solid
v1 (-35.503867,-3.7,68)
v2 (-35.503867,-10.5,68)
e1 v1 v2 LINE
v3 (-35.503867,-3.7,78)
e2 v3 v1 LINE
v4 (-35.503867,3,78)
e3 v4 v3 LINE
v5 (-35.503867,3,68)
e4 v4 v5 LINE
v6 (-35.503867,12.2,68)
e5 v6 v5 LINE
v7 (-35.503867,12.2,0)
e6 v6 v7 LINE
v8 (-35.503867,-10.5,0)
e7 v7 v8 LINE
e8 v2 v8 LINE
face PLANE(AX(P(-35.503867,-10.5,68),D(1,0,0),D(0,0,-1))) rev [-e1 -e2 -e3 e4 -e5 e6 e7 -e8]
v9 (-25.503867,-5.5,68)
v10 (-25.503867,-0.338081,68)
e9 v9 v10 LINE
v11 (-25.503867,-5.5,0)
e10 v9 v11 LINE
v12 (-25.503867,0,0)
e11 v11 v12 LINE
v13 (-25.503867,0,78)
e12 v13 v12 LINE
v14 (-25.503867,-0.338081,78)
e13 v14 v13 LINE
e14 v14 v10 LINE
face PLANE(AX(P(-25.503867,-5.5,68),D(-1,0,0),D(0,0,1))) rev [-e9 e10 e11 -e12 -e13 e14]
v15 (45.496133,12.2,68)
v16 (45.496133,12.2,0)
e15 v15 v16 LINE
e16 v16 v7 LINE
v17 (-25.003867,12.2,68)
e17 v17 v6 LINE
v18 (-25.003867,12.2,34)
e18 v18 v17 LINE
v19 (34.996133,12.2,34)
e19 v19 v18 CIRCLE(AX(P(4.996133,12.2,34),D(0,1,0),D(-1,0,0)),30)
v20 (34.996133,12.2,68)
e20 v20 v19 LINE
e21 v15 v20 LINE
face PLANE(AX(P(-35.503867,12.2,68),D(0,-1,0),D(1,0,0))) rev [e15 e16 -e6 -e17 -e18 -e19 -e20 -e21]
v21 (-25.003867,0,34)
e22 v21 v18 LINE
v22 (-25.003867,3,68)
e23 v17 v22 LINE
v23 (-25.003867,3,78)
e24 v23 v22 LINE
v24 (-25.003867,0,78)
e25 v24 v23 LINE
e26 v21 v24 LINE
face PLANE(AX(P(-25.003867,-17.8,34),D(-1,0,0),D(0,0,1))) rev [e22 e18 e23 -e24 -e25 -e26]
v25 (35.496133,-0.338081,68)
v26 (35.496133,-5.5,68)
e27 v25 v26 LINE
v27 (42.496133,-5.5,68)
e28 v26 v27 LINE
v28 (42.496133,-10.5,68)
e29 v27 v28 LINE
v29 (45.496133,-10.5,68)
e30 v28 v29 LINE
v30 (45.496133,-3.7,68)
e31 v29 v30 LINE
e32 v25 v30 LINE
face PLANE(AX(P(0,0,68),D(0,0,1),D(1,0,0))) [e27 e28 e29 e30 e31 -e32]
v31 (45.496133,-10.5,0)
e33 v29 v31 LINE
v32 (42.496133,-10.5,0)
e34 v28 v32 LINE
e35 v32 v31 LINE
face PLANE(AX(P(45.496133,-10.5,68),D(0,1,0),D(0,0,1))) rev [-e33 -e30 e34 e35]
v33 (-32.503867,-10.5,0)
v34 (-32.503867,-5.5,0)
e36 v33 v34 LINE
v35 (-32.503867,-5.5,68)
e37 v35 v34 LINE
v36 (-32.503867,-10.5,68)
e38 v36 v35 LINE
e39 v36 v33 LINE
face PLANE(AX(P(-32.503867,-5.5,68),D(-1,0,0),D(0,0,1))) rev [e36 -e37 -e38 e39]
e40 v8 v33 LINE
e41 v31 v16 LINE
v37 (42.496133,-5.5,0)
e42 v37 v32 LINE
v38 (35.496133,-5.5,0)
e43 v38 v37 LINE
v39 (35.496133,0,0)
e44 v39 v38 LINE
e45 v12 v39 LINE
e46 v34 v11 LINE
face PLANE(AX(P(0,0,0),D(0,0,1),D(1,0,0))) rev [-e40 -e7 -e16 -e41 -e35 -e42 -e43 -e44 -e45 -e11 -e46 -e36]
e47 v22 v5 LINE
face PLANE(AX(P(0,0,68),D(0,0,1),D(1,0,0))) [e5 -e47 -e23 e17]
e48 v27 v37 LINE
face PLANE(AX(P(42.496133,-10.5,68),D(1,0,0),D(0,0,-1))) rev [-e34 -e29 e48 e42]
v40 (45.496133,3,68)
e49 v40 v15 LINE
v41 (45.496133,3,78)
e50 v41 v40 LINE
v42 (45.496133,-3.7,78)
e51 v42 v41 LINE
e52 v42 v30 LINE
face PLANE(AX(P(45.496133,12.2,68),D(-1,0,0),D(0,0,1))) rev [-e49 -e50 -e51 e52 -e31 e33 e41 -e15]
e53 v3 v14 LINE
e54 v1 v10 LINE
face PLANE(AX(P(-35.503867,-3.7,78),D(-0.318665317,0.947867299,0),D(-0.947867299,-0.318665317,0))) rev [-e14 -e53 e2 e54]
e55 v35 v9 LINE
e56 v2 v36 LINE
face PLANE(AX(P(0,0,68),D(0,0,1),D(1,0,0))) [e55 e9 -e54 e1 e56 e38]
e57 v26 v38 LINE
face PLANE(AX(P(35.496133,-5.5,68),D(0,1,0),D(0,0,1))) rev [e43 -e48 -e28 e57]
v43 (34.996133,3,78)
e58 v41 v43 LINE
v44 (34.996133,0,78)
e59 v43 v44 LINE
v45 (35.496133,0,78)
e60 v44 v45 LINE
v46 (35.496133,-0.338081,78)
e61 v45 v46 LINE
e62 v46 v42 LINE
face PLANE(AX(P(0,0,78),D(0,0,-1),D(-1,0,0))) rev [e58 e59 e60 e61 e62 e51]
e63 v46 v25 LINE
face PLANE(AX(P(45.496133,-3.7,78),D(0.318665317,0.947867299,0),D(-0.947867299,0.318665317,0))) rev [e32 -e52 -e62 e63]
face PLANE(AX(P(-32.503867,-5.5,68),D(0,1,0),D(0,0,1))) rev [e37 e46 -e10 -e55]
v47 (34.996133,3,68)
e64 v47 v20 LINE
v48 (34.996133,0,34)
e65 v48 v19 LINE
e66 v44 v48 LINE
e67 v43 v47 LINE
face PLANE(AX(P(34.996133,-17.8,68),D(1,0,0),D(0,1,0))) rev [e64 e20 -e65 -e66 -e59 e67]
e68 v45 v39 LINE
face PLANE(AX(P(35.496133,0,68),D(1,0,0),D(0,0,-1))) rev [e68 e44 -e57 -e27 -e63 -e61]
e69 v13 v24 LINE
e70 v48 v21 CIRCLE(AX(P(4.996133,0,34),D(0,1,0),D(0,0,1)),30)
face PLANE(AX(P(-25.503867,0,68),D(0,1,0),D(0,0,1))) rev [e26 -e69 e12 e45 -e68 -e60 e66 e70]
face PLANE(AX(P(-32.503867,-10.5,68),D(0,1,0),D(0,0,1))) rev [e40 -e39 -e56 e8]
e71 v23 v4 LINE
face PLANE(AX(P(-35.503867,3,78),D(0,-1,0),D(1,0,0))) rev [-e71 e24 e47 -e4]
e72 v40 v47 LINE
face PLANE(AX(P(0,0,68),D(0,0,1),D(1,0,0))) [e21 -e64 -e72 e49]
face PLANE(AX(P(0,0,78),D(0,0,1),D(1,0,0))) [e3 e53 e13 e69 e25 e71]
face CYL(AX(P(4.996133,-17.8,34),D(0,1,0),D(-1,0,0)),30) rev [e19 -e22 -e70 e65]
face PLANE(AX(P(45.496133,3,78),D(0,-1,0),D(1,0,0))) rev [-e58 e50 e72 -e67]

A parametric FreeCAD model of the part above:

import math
import FreeCAD as App
import Part
import Sketcher


def add_polygon(sketch, points):
    """Adds a closed chain of lines whose ends are joined by coincident constraints."""
    first, n = sketch.GeometryCount, len(points)
    for a, b in zip(points, points[1:] + points[:1]):
        sketch.addGeometry(Part.LineSegment(App.Vector(*a, 0), App.Vector(*b, 0)), False)
    for i in range(n):
        sketch.addConstraint(Sketcher.Constraint("Coincident", first + i, 2, first + (i + 1) % n, 1))

doc = App.newDocument("Part")
body = doc.addObject("PartDesign::Body", "Body")

sketch1 = body.newObject("Sketcher::SketchObject", "Sketch")
sketch1.AttachmentSupport = (doc.getObject("XY_Plane"), [""])
sketch1.MapMode = "FlatFace"
add_polygon(sketch1, [(-32.503867, -10.5), (-32.503867, -5.5), (-25.503867, -5.5), (-25.503867, 0), (35.496133, 0), (35.496133, -5.5), (42.496133, -5.5), (42.496133, -10.5), (45.496133, -10.5), (45.496133, 12.2), (-35.503867, 12.2), (-35.503867, -10.5)])
sketch1.addConstraint(Sketcher.Constraint("Vertical", 0))
sketch1.addConstraint(Sketcher.Constraint("Horizontal", 1))
sketch1.addConstraint(Sketcher.Constraint("Vertical", 2))
sketch1.addConstraint(Sketcher.Constraint("Horizontal", 3))
sketch1.addConstraint(Sketcher.Constraint("Vertical", 4))
sketch1.addConstraint(Sketcher.Constraint("Horizontal", 5))
sketch1.addConstraint(Sketcher.Constraint("Vertical", 6))
sketch1.addConstraint(Sketcher.Constraint("Horizontal", 7))
sketch1.addConstraint(Sketcher.Constraint("Vertical", 8))
sketch1.addConstraint(Sketcher.Constraint("Horizontal", 9))
sketch1.addConstraint(Sketcher.Constraint("Vertical", 10))
sketch1.addConstraint(Sketcher.Constraint("Horizontal", 11))
sketch1.addConstraint(Sketcher.Constraint("PointOnObject", 2, 2, -1))
sketch1.addConstraint(Sketcher.Constraint("Horizontal", 1, 2, 4, 2))
sketch1.addConstraint(Sketcher.Constraint("Horizontal", 7, 2, 10, 2))
sketch1.addConstraint(Sketcher.Constraint("Equal", 1, 5))
sketch1.addConstraint(Sketcher.Constraint("Equal", 7, 11))
sketch1.addConstraint(Sketcher.Constraint("DistanceX", 1, 1, 1, 2, 7.0))
sketch1.addConstraint(Sketcher.Constraint("DistanceX", 3, 1, 3, 2, 61.0))
sketch1.addConstraint(Sketcher.Constraint("DistanceX", 7, 1, 7, 2, 3.0))
sketch1.addConstraint(Sketcher.Constraint("DistanceY", 0, 1, 0, 2, 5.0))
sketch1.addConstraint(Sketcher.Constraint("DistanceY", 2, 1, 2, 2, 5.5))
sketch1.addConstraint(Sketcher.Constraint("DistanceY", 8, 1, 8, 2, 22.7))
sketch1.addConstraint(Sketcher.Constraint("DistanceX", 0, 2, -1, 1, 32.503867))
pad1 = body.newObject("PartDesign::Pad", "Pad")
pad1.Profile = sketch1
pad1.Length = 68

sketch2 = body.newObject("Sketcher::SketchObject", "Sketch001")
sketch2.AttachmentSupport = (doc.getObject("XZ_Plane"), [""])
sketch2.MapMode = "FlatFace"
sketch2.AttachmentOffset = App.Placement(App.Vector(0, 0, -12.2), App.Rotation())
sketch2.addGeometry(Part.LineSegment(App.Vector(-25.003867, 34, 0), App.Vector(-25.003867, 68, 0)), False)
sketch2.addGeometry(Part.LineSegment(App.Vector(-25.003867, 68, 0), App.Vector(34.996133, 68, 0)), False)
sketch2.addGeometry(Part.LineSegment(App.Vector(34.996133, 68, 0), App.Vector(34.996133, 34, 0)), False)
sketch2.addGeometry(Part.ArcOfCircle(Part.Circle(App.Vector(4.996133, 34, 0), App.Vector(0, 0, 1), 30), math.radians(180), math.radians(360)), False)
sketch2.addConstraint(Sketcher.Constraint("Coincident", 0, 2, 1, 1))
sketch2.addConstraint(Sketcher.Constraint("Coincident", 1, 2, 2, 1))
sketch2.addConstraint(Sketcher.Constraint("Tangent", 2, 2, 3, 2))
sketch2.addConstraint(Sketcher.Constraint("Tangent", 3, 1, 0, 1))
sketch2.addConstraint(Sketcher.Constraint("Vertical", 0))
sketch2.addConstraint(Sketcher.Constraint("Horizontal", 1))
sketch2.addConstraint(Sketcher.Constraint("Vertical", 2))
sketch2.addConstraint(Sketcher.Constraint("Radius", 3, 30.0))
sketch2.addConstraint(Sketcher.Constraint("DistanceY", 0, 1, 0, 2, 34.0))
sketch2.addConstraint(Sketcher.Constraint("DistanceY", -1, 1, 3, 3, 34.0))
sketch2.addConstraint(Sketcher.Constraint("DistanceX", -1, 1, 3, 3, 4.996133))
pocket1 = body.newObject("PartDesign::Pocket", "Pocket")
pocket1.Profile = sketch2
pocket1.Length = 30
pocket1.Reversed = True

sketch3 = body.newObject("Sketcher::SketchObject", "Sketch002")
sketch3.AttachmentSupport = (doc.getObject("XY_Plane"), [""])
sketch3.MapMode = "FlatFace"
sketch3.AttachmentOffset = App.Placement(App.Vector(0, 0, 68), App.Rotation())
add_polygon(sketch3, [(-35.503867, 3), (-35.503867, -3.7), (-25.503867, -0.338081), (-25.503867, 0), (-25.003867, 0), (-25.003867, 3)])
add_polygon(sketch3, [(35.496133, 0), (35.496133, -0.338081), (45.496133, -3.7), (45.496133, 3), (34.996133, 3), (34.996133, 0)])
sketch3.addConstraint(Sketcher.Constraint("Vertical", 0))
sketch3.addConstraint(Sketcher.Constraint("Vertical", 2))
sketch3.addConstraint(Sketcher.Constraint("Horizontal", 3))
sketch3.addConstraint(Sketcher.Constraint("Vertical", 4))
sketch3.addConstraint(Sketcher.Constraint("Horizontal", 5))
sketch3.addConstraint(Sketcher.Constraint("Vertical", 6))
sketch3.addConstraint(Sketcher.Constraint("Vertical", 8))
sketch3.addConstraint(Sketcher.Constraint("Horizontal", 9))
sketch3.addConstraint(Sketcher.Constraint("Vertical", 10))
sketch3.addConstraint(Sketcher.Constraint("Horizontal", 11))
sketch3.addConstraint(Sketcher.Constraint("PointOnObject", 2, 2, -1))
sketch3.addConstraint(Sketcher.Constraint("PointOnObject", 10, 2, -1))
sketch3.addConstraint(Sketcher.Constraint("Horizontal", 1, 2, 6, 2))
sketch3.addConstraint(Sketcher.Constraint("Horizontal", 0, 2, 7, 2))
sketch3.addConstraint(Sketcher.Constraint("Horizontal", 5, 2, 8, 2))
sketch3.addConstraint(Sketcher.Constraint("Equal", 5, 9))
sketch3.addConstraint(Sketcher.Constraint("Equal", 3, 11))
sketch3.addConstraint(Sketcher.Constraint("DistanceY", 4, 1, 4, 2, 3.0))
sketch3.addConstraint(Sketcher.Constraint("DistanceX", 3, 1, 3, 2, 0.5))
sketch3.addConstraint(Sketcher.Constraint("DistanceX", 5, 2, 5, 1, 10.5))
sketch3.addConstraint(Sketcher.Constraint("DistanceY", 0, 2, 0, 1, 6.7))
sketch3.addConstraint(Sketcher.Constraint("DistanceX", 1, 2, 6, 2, 61.0))
sketch3.addConstraint(Sketcher.Constraint("Distance", 1, 10.55))
sketch3.addConstraint(Sketcher.Constraint("DistanceX", 0, 2, -1, 1, 35.503867))
pad2 = body.newObject("PartDesign::Pad", "Pad001")
pad2.Profile = sketch3
pad2.Length = 10

doc.recompute()
